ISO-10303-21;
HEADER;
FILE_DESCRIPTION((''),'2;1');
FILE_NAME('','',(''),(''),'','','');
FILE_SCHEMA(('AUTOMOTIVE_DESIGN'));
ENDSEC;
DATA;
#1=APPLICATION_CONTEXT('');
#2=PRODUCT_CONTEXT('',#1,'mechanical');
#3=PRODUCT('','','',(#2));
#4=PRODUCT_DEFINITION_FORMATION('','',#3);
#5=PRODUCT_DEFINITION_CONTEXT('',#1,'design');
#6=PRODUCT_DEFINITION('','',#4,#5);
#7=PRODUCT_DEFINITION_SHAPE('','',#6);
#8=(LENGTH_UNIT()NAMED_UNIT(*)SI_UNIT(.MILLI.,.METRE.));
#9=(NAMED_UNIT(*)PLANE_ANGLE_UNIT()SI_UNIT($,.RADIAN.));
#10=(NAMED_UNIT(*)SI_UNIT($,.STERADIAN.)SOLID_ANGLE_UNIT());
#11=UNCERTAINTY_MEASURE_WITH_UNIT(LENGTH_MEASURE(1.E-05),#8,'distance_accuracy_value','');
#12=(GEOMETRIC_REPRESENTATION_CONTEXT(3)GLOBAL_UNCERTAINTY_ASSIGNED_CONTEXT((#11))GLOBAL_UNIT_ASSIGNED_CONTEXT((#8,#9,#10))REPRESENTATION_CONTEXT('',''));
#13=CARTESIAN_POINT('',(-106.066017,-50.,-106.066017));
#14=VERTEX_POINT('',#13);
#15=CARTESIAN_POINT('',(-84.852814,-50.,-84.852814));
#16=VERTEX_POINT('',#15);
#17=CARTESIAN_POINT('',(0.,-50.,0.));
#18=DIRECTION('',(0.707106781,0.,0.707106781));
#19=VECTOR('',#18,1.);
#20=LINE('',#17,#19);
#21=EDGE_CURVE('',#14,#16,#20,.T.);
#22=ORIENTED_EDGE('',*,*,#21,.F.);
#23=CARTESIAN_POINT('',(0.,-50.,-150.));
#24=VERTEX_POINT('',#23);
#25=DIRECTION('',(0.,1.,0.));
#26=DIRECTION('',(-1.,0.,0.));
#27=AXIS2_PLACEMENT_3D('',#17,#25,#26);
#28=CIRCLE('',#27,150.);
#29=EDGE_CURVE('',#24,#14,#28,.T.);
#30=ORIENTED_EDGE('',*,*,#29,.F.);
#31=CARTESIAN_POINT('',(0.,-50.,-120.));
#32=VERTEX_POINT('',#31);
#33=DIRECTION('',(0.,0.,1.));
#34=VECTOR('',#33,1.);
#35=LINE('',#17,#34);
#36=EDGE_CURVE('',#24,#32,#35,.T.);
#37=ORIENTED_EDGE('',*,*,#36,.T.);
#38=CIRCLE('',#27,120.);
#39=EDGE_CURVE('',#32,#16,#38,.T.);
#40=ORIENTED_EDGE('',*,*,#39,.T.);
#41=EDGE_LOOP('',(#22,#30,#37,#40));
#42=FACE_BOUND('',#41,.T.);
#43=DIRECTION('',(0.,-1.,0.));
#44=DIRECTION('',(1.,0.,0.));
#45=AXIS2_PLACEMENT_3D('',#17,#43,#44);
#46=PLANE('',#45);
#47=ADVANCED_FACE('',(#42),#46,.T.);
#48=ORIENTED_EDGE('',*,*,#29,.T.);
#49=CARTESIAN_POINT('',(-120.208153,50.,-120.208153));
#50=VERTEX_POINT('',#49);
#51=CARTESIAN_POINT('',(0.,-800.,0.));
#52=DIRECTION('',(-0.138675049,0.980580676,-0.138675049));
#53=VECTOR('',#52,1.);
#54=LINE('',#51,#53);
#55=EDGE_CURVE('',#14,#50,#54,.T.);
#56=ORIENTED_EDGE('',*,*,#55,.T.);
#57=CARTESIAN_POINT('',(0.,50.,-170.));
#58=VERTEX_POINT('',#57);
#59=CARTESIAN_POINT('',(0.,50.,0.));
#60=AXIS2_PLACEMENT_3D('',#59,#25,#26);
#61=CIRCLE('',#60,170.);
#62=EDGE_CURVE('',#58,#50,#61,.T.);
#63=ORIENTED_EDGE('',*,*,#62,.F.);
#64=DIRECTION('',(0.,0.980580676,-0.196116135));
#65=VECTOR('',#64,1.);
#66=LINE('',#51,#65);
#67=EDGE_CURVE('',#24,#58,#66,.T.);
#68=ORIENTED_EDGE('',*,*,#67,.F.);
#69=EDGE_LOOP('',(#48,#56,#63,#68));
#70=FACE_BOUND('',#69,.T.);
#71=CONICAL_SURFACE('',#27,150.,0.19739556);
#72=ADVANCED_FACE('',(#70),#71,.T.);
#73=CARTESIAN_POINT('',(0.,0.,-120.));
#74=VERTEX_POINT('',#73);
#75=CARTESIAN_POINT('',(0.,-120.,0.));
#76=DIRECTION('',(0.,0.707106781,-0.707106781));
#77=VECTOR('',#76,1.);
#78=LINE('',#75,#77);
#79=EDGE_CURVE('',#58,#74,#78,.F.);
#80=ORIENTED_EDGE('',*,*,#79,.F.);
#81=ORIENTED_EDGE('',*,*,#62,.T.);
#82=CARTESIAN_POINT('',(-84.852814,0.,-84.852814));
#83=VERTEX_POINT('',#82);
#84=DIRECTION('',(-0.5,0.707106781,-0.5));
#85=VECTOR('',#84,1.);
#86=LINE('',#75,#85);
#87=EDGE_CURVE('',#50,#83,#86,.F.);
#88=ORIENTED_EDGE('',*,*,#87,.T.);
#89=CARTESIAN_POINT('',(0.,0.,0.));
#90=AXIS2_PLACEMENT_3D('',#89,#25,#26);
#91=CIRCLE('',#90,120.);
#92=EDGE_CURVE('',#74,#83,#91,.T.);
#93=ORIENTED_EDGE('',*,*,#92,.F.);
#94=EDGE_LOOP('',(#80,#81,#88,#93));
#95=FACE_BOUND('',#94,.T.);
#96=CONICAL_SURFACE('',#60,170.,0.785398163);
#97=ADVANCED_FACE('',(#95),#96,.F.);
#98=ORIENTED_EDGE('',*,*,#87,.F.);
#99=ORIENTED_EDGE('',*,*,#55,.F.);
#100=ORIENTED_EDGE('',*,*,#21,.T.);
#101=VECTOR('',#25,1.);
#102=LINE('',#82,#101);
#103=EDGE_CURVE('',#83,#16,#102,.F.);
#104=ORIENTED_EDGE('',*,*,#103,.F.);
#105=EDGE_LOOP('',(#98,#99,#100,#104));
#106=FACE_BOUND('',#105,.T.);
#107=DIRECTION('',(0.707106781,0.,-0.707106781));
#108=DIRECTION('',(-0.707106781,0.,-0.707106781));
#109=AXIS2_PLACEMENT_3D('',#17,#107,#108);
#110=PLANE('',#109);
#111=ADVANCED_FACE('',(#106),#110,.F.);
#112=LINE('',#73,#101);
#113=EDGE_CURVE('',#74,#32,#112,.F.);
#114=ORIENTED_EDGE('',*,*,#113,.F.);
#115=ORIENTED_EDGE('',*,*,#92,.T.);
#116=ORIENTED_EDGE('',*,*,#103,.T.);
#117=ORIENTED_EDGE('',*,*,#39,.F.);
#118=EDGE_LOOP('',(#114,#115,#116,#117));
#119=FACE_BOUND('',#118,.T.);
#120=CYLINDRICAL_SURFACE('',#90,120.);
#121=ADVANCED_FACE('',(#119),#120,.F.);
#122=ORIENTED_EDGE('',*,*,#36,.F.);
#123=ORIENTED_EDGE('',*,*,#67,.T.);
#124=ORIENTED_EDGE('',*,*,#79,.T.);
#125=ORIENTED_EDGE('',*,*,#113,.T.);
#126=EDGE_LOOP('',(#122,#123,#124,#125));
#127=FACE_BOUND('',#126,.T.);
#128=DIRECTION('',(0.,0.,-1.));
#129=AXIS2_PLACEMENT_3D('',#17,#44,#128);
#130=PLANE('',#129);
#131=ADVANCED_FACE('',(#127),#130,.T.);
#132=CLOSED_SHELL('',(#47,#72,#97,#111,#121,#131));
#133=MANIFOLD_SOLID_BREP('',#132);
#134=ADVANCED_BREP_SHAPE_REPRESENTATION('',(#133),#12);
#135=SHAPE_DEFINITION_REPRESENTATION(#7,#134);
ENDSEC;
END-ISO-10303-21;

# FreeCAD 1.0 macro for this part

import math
import FreeCAD as App
import Part
import Sketcher
from FreeCAD import Vector
Q = App.Units.Quantity


def add_polygon(sketch, points):
    """Adds a closed chain of lines whose ends are joined by coincident constraints."""
    first, n = sketch.GeometryCount, len(points)
    for a, b in zip(points, points[1:] + points[:1]):
        sketch.addGeometry(Part.LineSegment(App.Vector(*a, 0), App.Vector(*b, 0)), False)
    for i in range(n):
        sketch.addConstraint(Sketcher.Constraint("Coincident", first + i, 2, first + (i + 1) % n, 1))

doc = App.newDocument("Part")
body = doc.addObject("PartDesign::Body", "Body")

# Sketch on XY plane
sketch1 = body.newObject("Sketcher::SketchObject", "Sketch")
sketch1.AttachmentSupport = (doc.getObject("XY_Plane"), [""])
sketch1.MapMode = "FlatFace"
add_polygon(sketch1, [(-120, 0), (-170, 50), (-150, -50), (-120, -50)])  # lines 0-3
sketch1.addConstraint(Sketcher.Constraint("Horizontal", 2))
sketch1.addConstraint(Sketcher.Constraint("Vertical", 3))
sketch1.addConstraint(Sketcher.Constraint("PointOnObject", 3, 2, -1))
sketch1.addConstraint(Sketcher.Constraint("DistanceX", 2, 1, 2, 2, Q("30 mm")))
sketch1.addConstraint(Sketcher.Constraint("DistanceY", 3, 1, 3, 2, Q("50 mm")))
sketch1.addConstraint(Sketcher.Constraint("Angle", 0, Q("135 deg")))
sketch1.addConstraint(Sketcher.Constraint("DistanceX", 0, 2, -1, 1, Q("170 mm")))
sketch1.addConstraint(Sketcher.Constraint("DistanceY", -1, 1, 0, 2, Q("50 mm")))
revolution = body.newObject("PartDesign::Revolution", "Revolution")
revolution.Profile = sketch1
revolution.ReferenceAxis = (sketch1, ["V_Axis"])
revolution.Angle = 360

# Sketch on XZ plane
sketch2 = body.newObject("Sketcher::SketchObject", "Sketch001")
sketch2.AttachmentSupport = (doc.getObject("XZ_Plane"), [""])
sketch2.MapMode = "FlatFace"
sketch2.addGeometry(Part.LineSegment(Vector(0, 0, 0), Vector(-120.208153, -120.208153, 0)), False)
sketch2.addGeometry(Part.ArcOfCircle(Part.Circle(Vector(0, 0, 0), Vector(0, 0, 1), 170), math.radians(-90), math.radians(225)), False)
sketch2.addGeometry(Part.LineSegment(Vector(0, -170, 0), Vector(0, 0, 0)), False)
sketch2.addConstraint(Sketcher.Constraint("Coincident", 0, 2, 1, 2))
sketch2.addConstraint(Sketcher.Constraint("Coincident", 1, 1, 2, 1))
sketch2.addConstraint(Sketcher.Constraint("Coincident", 2, 2, 0, 1))
sketch2.addConstraint(Sketcher.Constraint("Vertical", 2))
sketch2.addConstraint(Sketcher.Constraint("Coincident", 1, 3, -1, 1))
sketch2.addConstraint(Sketcher.Constraint("Coincident", 2, 2, -1, 1))
sketch2.addConstraint(Sketcher.Constraint("Radius", 1, Q("170 mm")))
sketch2.addConstraint(Sketcher.Constraint("Angle", 0, Q("-135 deg")))
pocket1 = body.newObject("PartDesign::Pocket", "Pocket")
pocket1.Profile = sketch2
pocket1.Type = "ThroughAll"
pocket1.Midplane = True

doc.recompute()
